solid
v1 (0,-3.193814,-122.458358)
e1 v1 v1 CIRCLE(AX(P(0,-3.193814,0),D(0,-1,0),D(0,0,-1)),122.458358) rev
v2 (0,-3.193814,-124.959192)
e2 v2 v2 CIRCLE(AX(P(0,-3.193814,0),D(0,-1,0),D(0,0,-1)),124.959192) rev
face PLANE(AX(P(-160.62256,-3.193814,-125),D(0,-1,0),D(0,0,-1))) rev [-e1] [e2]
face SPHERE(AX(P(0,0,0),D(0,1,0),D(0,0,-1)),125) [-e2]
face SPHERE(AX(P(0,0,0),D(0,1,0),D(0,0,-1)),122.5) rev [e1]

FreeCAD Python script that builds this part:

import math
import FreeCAD as App
import Part
import Sketcher

doc = App.newDocument("Part")
body = doc.addObject("PartDesign::Body", "Body")

sketch1 = body.newObject("Sketcher::SketchObject", "Sketch")
sketch1.AttachmentSupport = (doc.getObject("YZ_Plane"), [""])
sketch1.MapMode = "FlatFace"
sketch1.addGeometry([
    Part.ArcOfCircle(Part.Circle(App.Vector(0, 0, 0), App.Vector(0, 0, 1), 125), math.radians(-180), math.radians(-90)),
    Part.ArcOfCircle(Part.Circle(App.Vector(0, 0, 0), App.Vector(0, 0, 1), 125), math.radians(-90), math.radians(0)),
    Part.LineSegment(App.Vector(125, 0, 0), App.Vector(122.5, 0, 0)),
    Part.ArcOfCircle(Part.Circle(App.Vector(0, 0, 0), App.Vector(0, 0, 1), 122.5), math.radians(-90), math.radians(0)),
    Part.ArcOfCircle(Part.Circle(App.Vector(0, 0, 0), App.Vector(0, 0, 1), 122.5), math.radians(-180), math.radians(-90)),
    Part.LineSegment(App.Vector(-122.5, 0, 0), App.Vector(-125, 0, 0)),
], False)
sketch1.addConstraint([
    Sketcher.Constraint("Tangent", 0, 2, 1, 1),
    Sketcher.Constraint("Coincident", 1, 2, 2, 1),
    Sketcher.Constraint("Coincident", 2, 2, 3, 2),
    Sketcher.Constraint("Tangent", 3, 1, 4, 2),
    Sketcher.Constraint("Coincident", 4, 1, 5, 1),
    Sketcher.Constraint("Coincident", 5, 2, 0, 1),
    Sketcher.Constraint("Horizontal", 2),
    Sketcher.Constraint("Horizontal", 5),
    Sketcher.Constraint("Coincident", 0, 3, -1, 1),
    Sketcher.Constraint("Coincident", 3, 3, -1, 1),
    Sketcher.Constraint("Equal", 0, 1),
    Sketcher.Constraint("Equal", 3, 4),
    Sketcher.Constraint("PointOnObject", 0, 2, -2),
    Sketcher.Constraint("PointOnObject", 1, 2, -1),
    Sketcher.Constraint("PointOnObject", 3, 1, -2),
    Sketcher.Constraint("PointOnObject", 4, 1, -1),
    Sketcher.Constraint("Radius", 0, 125.0),
    Sketcher.Constraint("Radius", 3, 122.5),
])
revolution = body.newObject("PartDesign::Revolution", "Revolution")
revolution.Profile = sketch1
revolution.ReferenceAxis = (sketch1, ["H_Axis"])
revolution.Angle = 360

sketch2 = body.newObject("Sketcher::SketchObject", "Sketch001")
sketch2.AttachmentSupport = (doc.getObject("XY_Plane"), [""])
sketch2.MapMode = "FlatFace"
sketch2.addGeometry([
    Part.LineSegment(App.Vector(-161, 162, 0), App.Vector(-161, -3, 0)),
    Part.LineSegment(App.Vector(-161, -3, 0), App.Vector(169, -3, 0)),
    Part.LineSegment(App.Vector(169, -3, 0), App.Vector(169, 162, 0)),
    Part.LineSegment(App.Vector(169, 162, 0), App.Vector(-161, 162, 0)),
], False)
sketch2.addConstraint([
    Sketcher.Constraint("Coincident", 0, 2, 1, 1),
    Sketcher.Constraint("Coincident", 1, 2, 2, 1),
    Sketcher.Constraint("Coincident", 2, 2, 3, 1),
    Sketcher.Constraint("Coincident", 3, 2, 0, 1),
    Sketcher.Constraint("Vertical", 0),
    Sketcher.Constraint("Horizontal", 1),
    Sketcher.Constraint("Vertical", 2),
    Sketcher.Constraint("Horizontal", 3),
    Sketcher.Constraint("DistanceY", 0, 2, 0, 1, 165.618231),
    Sketcher.Constraint("DistanceX", 1, 1, 1, 2, 329.482175),
    Sketcher.Constraint("DistanceX", 0, 2, -1, 1, 160.62256),
    Sketcher.Constraint("DistanceY", 0, 2, -1, 1, 3.193814),
])
pocket1 = body.newObject("PartDesign::Pocket", "Pocket")
pocket1.Profile = sketch2
pocket1.Type = "ThroughAll"
pocket1.Midplane = True

doc.recompute()
